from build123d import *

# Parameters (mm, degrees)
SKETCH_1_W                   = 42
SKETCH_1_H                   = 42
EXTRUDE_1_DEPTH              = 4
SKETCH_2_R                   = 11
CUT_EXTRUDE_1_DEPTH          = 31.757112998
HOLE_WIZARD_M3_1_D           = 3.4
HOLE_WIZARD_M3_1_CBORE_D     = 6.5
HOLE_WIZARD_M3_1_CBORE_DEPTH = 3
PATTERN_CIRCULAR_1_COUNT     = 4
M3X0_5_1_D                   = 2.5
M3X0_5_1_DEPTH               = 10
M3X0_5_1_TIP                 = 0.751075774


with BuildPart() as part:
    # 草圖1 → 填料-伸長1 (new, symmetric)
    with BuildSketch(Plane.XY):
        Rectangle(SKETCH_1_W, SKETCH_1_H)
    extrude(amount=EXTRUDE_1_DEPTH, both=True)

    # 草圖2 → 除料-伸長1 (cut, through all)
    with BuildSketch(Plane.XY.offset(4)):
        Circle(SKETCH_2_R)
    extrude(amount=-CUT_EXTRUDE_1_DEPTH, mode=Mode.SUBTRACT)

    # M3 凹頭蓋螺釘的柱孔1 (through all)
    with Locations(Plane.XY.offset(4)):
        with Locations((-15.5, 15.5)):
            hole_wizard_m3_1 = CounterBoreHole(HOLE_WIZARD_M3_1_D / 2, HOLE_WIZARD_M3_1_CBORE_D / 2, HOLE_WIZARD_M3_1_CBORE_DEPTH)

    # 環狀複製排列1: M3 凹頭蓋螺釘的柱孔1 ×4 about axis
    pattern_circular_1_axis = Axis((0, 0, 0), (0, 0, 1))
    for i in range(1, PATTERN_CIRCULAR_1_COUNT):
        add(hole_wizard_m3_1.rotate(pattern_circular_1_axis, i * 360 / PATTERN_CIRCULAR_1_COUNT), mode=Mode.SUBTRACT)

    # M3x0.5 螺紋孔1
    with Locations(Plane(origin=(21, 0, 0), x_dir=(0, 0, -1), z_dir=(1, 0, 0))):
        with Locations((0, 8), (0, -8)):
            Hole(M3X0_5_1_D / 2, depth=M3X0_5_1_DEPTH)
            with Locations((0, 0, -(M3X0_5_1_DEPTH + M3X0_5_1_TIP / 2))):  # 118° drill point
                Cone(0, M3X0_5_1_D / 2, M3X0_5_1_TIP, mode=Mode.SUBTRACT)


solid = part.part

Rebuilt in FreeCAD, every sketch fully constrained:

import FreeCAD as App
import Part
import Sketcher
Q = App.Units.Quantity


def add_polygon(sketch, points):
    """Adds a closed chain of lines whose ends are joined by coincident constraints."""
    first, n = sketch.GeometryCount, len(points)
    for a, b in zip(points, points[1:] + points[:1]):
        sketch.addGeometry(Part.LineSegment(App.Vector(*a, 0), App.Vector(*b, 0)), False)
    for i in range(n):
        sketch.addConstraint(Sketcher.Constraint("Coincident", first + i, 2, first + (i + 1) % n, 1))

doc = App.newDocument("Part")
body = doc.addObject("PartDesign::Body", "Body")

# Sketch on XY plane
sketch1 = doc.addObject("Sketcher::SketchObject", "Sketch")
body.addObject(sketch1)
sketch1.AttachmentSupport = (doc.XY_Plane, [""])
sketch1.MapMode = "FlatFace"
add_polygon(sketch1, [(-21, 21), (-21, -21), (21, -21), (21, 21)])  # lines 0-3
sketch1.addConstraint([
    Sketcher.Constraint("Vertical", 0),
    Sketcher.Constraint("Horizontal", 1),
    Sketcher.Constraint("Vertical", 2),
    Sketcher.Constraint("Horizontal", 3),
    Sketcher.Constraint("Symmetric", 0, 2, 2, 2, -1, 1),
    Sketcher.Constraint("Equal", 3, 0),
    Sketcher.Constraint("DistanceX", 1, 1, 1, 2, Q("42 mm")),
])
pad1 = doc.addObject("PartDesign::Pad", "Pad")
body.addObject(pad1)
pad1.Profile = sketch1
pad1.Length = 8
pad1.Midplane = True

# Sketch on XY plane
sketch2 = doc.addObject("Sketcher::SketchObject", "Sketch001")
body.addObject(sketch2)
sketch2.AttachmentSupport = (doc.XY_Plane, [""])
sketch2.MapMode = "FlatFace"
sketch2.AttachmentOffset = App.Placement(App.Vector(0, 0, 4), App.Rotation())
sketch2.addGeometry(Part.Circle(App.Vector(0, 0, 0), App.Vector(0, 0, 1), 11), False)
sketch2.addConstraint([
    Sketcher.Constraint("Coincident", 0, 3, -1, 1),
    Sketcher.Constraint("Diameter", 0, Q("22 mm")),
])
pocket1 = doc.addObject("PartDesign::Pocket", "Pocket")
body.addObject(pocket1)
pocket1.Profile = sketch2
pocket1.Type = "ThroughAll"

# Sketch on XY plane
sketch3 = doc.addObject("Sketcher::SketchObject", "Sketch002")
body.addObject(sketch3)
sketch3.AttachmentSupport = (doc.XY_Plane, [""])
sketch3.MapMode = "FlatFace"
sketch3.AttachmentOffset = App.Placement(App.Vector(0, 0, 4), App.Rotation())
sketch3.addGeometry(Part.Circle(App.Vector(-15.5, 15.5, 0), App.Vector(0, 0, 1), 1.7), False)
sketch3.addConstraint([
    Sketcher.Constraint("Diameter", 0, Q("3.4 mm")),
    Sketcher.Constraint("DistanceX", 0, 3, -1, 1, Q("15.5 mm")),
    Sketcher.Constraint("DistanceY", -1, 1, 0, 3, Q("15.5 mm")),
])
doc.recompute()
hole = doc.addObject("PartDesign::Hole", "Hole")
body.addObject(hole)
hole.Profile = sketch3
hole.ThreadType = "None"
hole.Diameter = 3.4
hole.DepthType = "ThroughAll"
hole.HoleCutType = "Counterbore"
hole.HoleCutDiameter = 6.5
hole.HoleCutDepth = 3
doc.recompute()

polarpattern = doc.addObject("PartDesign::PolarPattern", "PolarPattern")
body.addObject(polarpattern)
polarpattern.Originals = [hole]
polarpattern.Axis = (doc.Z_Axis, [""])
polarpattern.Angle = 360
polarpattern.Occurrences = 4
body.Tip = polarpattern

# Sketch on YZ plane
sketch4 = doc.addObject("Sketcher::SketchObject", "Sketch003")
body.addObject(sketch4)
sketch4.AttachmentSupport = (doc.YZ_Plane, [""])
sketch4.MapMode = "FlatFace"
sketch4.AttachmentOffset = App.Placement(App.Vector(0, 0, 21), App.Rotation())
sketch4.addGeometry([
    Part.Circle(App.Vector(8, 0, 0), App.Vector(0, 0, 1), 1.25),
    Part.Circle(App.Vector(-8, 0, 0), App.Vector(0, 0, 1), 1.25),
], False)
sketch4.addConstraint([
    Sketcher.Constraint("Equal", 0, 1),
    Sketcher.Constraint("Symmetric", 0, 3, 1, 3, -1, 1),
    Sketcher.Constraint("PointOnObject", 0, 3, -1),
    Sketcher.Constraint("Diameter", 0, Q("2.5 mm")),
    Sketcher.Constraint("DistanceX", -1, 1, 0, 3, Q("8 mm")),
])
doc.recompute()
hole2 = doc.addObject("PartDesign::Hole", "Hole001")
body.addObject(hole2)
hole2.Profile = sketch4
hole2.ThreadType = "None"
hole2.Diameter = 2.5
hole2.DepthType = "Dimension"
hole2.Depth = 10
hole2.DrillPoint = "Angled"
hole2.DrillPointAngle = 118

doc.recompute()
